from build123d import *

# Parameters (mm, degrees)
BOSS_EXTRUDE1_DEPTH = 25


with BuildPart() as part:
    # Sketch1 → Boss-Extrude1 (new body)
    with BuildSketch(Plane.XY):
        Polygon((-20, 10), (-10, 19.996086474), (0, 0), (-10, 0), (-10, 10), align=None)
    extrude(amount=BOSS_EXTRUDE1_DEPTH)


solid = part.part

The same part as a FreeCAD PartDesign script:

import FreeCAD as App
import Part
import Sketcher
from FreeCAD import Vector

doc = App.newDocument("Part")
body = doc.addObject("PartDesign::Body", "Body")

# Sketch on XY plane
sketch1 = body.newObject("Sketcher::SketchObject", "Sketch")
sketch1.AttachmentSupport = (doc.getObject("XY_Plane"), [""])
sketch1.MapMode = "FlatFace"
sketch1.addGeometry([
    Part.LineSegment(Vector(-10, 19.996086, 0), Vector(-20, 10, 0)),  # 0
    Part.LineSegment(Vector(-20, 10, 0), Vector(-10, 10, 0)),  # 1
    Part.LineSegment(Vector(-10, 10, 0), Vector(-10, 0, 0)),  # 2
    Part.LineSegment(Vector(-10, 0, 0), Vector(0, 0, 0)),  # 3
    Part.LineSegment(Vector(0, 0, 0), Vector(-10, 19.996086, 0)),  # 4
], False)
sketch1.addConstraint([
    Sketcher.Constraint("Coincident", 0, 2, 1, 1),
    Sketcher.Constraint("Coincident", 1, 2, 2, 1),
    Sketcher.Constraint("Coincident", 2, 2, 3, 1),
    Sketcher.Constraint("Coincident", 3, 2, 4, 1),
    Sketcher.Constraint("Coincident", 4, 2, 0, 1),
    Sketcher.Constraint("Horizontal", 1),
    Sketcher.Constraint("Vertical", 2),
    Sketcher.Constraint("Horizontal", 3),
    Sketcher.Constraint("Coincident", 3, 2, -1, 1),
    Sketcher.Constraint("Vertical", 2, 2, 4, 2),
    Sketcher.Constraint("Equal", 1, 3),
    Sketcher.Constraint("Equal", 3, 2),
    Sketcher.Constraint("DistanceX", 1, 1, 1, 2, 10.0),
    Sketcher.Constraint("Distance", 0, 14.139369),
])
pad1 = body.newObject("PartDesign::Pad", "Pad")
pad1.Profile = sketch1
pad1.Length = 25

doc.recompute()
